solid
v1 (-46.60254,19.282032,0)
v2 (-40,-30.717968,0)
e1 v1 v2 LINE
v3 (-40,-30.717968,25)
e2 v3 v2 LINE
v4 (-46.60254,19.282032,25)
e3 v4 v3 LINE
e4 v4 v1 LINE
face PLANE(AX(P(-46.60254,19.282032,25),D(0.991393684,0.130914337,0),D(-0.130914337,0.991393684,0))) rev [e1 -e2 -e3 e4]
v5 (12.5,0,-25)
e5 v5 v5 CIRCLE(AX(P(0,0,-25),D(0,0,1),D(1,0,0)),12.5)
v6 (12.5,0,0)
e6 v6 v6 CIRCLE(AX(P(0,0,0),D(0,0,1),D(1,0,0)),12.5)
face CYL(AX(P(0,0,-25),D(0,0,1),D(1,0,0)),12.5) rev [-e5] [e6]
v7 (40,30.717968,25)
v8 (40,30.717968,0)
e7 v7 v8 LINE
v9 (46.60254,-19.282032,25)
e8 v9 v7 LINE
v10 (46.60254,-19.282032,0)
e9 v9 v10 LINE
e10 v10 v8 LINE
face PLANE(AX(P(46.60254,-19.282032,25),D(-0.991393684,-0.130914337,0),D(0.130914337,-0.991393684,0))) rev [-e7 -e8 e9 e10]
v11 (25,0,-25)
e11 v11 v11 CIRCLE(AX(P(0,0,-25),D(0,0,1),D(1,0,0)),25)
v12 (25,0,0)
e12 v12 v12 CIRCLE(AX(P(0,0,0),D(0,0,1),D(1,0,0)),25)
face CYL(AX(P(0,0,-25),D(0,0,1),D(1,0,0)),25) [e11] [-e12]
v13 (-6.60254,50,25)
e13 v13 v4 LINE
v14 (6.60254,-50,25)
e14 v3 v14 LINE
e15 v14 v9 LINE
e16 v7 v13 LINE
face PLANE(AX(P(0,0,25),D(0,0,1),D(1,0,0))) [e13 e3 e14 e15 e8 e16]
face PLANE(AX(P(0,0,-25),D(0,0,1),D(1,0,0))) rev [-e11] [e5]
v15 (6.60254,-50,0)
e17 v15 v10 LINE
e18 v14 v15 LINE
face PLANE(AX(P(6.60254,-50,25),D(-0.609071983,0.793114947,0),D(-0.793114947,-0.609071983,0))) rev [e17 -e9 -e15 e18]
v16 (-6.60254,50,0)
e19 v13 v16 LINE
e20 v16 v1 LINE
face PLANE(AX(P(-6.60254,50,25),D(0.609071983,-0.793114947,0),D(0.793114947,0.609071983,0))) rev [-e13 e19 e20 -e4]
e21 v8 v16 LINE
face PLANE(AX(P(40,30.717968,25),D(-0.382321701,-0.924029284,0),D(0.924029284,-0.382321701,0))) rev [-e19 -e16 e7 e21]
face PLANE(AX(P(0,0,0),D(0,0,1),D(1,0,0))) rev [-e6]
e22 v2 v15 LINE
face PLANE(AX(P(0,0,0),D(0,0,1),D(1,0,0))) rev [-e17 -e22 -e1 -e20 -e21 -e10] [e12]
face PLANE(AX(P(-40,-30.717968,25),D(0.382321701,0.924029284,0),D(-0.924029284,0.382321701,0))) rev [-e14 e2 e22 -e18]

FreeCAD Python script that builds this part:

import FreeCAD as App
import Part
import Sketcher
Q = App.Units.Quantity

doc = App.newDocument("Part")
params = doc.addObject("Spreadsheet::Sheet", "Params")
for row, (alias, value) in enumerate([
    ("pad1_length", "25 mm"),
    ("sketch2_diameter", "50 mm"),
    ("sketch2_diameter2", "25 mm"),
    ("pad2_length", "25 mm"),
], start=1):
    params.set(f"A{row}", alias)
    params.set(f"B{row}", "=" + value)
    params.setAlias(f"B{row}", alias)

body = doc.addObject("PartDesign::Body", "Body")

# Sketch on XY plane
sketch1 = body.newObject("Sketcher::SketchObject", "Sketch")
sketch1.AttachmentSupport = (doc.getObject("XY_Plane"), [""])
sketch1.MapMode = "FlatFace"
sketch1.addGeometry([
    Part.LineSegment(App.Vector(-46.60254, 19.282032, 0), App.Vector(-40, -30.717968, 0)),  # 0
    Part.LineSegment(App.Vector(-40, -30.717968, 0), App.Vector(6.60254, -50, 0)),  # 1
    Part.LineSegment(App.Vector(6.60254, -50, 0), App.Vector(46.60254, -19.282032, 0)),  # 2
    Part.LineSegment(App.Vector(46.60254, -19.282032, 0), App.Vector(40, 30.717968, 0)),  # 3
    Part.LineSegment(App.Vector(40, 30.717968, 0), App.Vector(-6.60254, 50, 0)),  # 4
    Part.LineSegment(App.Vector(-6.60254, 50, 0), App.Vector(-46.60254, 19.282032, 0)),  # 5
], False)
sketch1.addConstraint([
    Sketcher.Constraint("Coincident", 0, 2, 1, 1),
    Sketcher.Constraint("Coincident", 1, 2, 2, 1),
    Sketcher.Constraint("Coincident", 2, 2, 3, 1),
    Sketcher.Constraint("Coincident", 3, 2, 4, 1),
    Sketcher.Constraint("Coincident", 4, 2, 5, 1),
    Sketcher.Constraint("Coincident", 5, 2, 0, 1),
    Sketcher.Constraint("Symmetric", 0, 2, 3, 2, -1, 1),
    Sketcher.Constraint("Symmetric", 1, 2, 4, 2, -1, 1),
    Sketcher.Constraint("Symmetric", 2, 2, 5, 2, -1, 1),
    Sketcher.Constraint("Equal", 0, 1),
    Sketcher.Constraint("Equal", 1, 2),
    Sketcher.Constraint("DistanceX", 0, 2, -1, 1, Q("40 mm")),
    Sketcher.Constraint("DistanceY", 1, 2, -1, 1, Q("50 mm")),
    Sketcher.Constraint("DistanceX", 1, 2, 2, 2, Q("40 mm")),
    Sketcher.Constraint("DistanceY", 2, 2, 3, 2, Q("50 mm")),
])
pad1 = body.newObject("PartDesign::Pad", "Pad")
pad1.Profile = sketch1
pad1.setExpression("Length", "Params.pad1_length")

# Sketch on XY plane
sketch2 = body.newObject("Sketcher::SketchObject", "Sketch001")
sketch2.AttachmentSupport = (doc.getObject("XY_Plane"), [""])
sketch2.MapMode = "FlatFace"
sketch2.addGeometry([
    Part.Circle(App.Vector(0, 0, 0), App.Vector(0, 0, 1), 25),
    Part.Circle(App.Vector(0, 0, 0), App.Vector(0, 0, 1), 12.5),
], False)
sketch2.addConstraint([
    Sketcher.Constraint("Coincident", 0, 3, -1, 1),
    Sketcher.Constraint("Coincident", 1, 3, -1, 1),
    Sketcher.Constraint("Diameter", 0, Q("50 mm")),
    Sketcher.Constraint("Diameter", 1, Q("25 mm")),
])
sketch2.setExpression("Constraints[2]", "Params.sketch2_diameter")
sketch2.setExpression("Constraints[3]", "Params.sketch2_diameter2")
pad2 = body.newObject("PartDesign::Pad", "Pad001")
pad2.Profile = sketch2
pad2.setExpression("Length", "Params.pad2_length")
pad2.Reversed = True

doc.recompute()
